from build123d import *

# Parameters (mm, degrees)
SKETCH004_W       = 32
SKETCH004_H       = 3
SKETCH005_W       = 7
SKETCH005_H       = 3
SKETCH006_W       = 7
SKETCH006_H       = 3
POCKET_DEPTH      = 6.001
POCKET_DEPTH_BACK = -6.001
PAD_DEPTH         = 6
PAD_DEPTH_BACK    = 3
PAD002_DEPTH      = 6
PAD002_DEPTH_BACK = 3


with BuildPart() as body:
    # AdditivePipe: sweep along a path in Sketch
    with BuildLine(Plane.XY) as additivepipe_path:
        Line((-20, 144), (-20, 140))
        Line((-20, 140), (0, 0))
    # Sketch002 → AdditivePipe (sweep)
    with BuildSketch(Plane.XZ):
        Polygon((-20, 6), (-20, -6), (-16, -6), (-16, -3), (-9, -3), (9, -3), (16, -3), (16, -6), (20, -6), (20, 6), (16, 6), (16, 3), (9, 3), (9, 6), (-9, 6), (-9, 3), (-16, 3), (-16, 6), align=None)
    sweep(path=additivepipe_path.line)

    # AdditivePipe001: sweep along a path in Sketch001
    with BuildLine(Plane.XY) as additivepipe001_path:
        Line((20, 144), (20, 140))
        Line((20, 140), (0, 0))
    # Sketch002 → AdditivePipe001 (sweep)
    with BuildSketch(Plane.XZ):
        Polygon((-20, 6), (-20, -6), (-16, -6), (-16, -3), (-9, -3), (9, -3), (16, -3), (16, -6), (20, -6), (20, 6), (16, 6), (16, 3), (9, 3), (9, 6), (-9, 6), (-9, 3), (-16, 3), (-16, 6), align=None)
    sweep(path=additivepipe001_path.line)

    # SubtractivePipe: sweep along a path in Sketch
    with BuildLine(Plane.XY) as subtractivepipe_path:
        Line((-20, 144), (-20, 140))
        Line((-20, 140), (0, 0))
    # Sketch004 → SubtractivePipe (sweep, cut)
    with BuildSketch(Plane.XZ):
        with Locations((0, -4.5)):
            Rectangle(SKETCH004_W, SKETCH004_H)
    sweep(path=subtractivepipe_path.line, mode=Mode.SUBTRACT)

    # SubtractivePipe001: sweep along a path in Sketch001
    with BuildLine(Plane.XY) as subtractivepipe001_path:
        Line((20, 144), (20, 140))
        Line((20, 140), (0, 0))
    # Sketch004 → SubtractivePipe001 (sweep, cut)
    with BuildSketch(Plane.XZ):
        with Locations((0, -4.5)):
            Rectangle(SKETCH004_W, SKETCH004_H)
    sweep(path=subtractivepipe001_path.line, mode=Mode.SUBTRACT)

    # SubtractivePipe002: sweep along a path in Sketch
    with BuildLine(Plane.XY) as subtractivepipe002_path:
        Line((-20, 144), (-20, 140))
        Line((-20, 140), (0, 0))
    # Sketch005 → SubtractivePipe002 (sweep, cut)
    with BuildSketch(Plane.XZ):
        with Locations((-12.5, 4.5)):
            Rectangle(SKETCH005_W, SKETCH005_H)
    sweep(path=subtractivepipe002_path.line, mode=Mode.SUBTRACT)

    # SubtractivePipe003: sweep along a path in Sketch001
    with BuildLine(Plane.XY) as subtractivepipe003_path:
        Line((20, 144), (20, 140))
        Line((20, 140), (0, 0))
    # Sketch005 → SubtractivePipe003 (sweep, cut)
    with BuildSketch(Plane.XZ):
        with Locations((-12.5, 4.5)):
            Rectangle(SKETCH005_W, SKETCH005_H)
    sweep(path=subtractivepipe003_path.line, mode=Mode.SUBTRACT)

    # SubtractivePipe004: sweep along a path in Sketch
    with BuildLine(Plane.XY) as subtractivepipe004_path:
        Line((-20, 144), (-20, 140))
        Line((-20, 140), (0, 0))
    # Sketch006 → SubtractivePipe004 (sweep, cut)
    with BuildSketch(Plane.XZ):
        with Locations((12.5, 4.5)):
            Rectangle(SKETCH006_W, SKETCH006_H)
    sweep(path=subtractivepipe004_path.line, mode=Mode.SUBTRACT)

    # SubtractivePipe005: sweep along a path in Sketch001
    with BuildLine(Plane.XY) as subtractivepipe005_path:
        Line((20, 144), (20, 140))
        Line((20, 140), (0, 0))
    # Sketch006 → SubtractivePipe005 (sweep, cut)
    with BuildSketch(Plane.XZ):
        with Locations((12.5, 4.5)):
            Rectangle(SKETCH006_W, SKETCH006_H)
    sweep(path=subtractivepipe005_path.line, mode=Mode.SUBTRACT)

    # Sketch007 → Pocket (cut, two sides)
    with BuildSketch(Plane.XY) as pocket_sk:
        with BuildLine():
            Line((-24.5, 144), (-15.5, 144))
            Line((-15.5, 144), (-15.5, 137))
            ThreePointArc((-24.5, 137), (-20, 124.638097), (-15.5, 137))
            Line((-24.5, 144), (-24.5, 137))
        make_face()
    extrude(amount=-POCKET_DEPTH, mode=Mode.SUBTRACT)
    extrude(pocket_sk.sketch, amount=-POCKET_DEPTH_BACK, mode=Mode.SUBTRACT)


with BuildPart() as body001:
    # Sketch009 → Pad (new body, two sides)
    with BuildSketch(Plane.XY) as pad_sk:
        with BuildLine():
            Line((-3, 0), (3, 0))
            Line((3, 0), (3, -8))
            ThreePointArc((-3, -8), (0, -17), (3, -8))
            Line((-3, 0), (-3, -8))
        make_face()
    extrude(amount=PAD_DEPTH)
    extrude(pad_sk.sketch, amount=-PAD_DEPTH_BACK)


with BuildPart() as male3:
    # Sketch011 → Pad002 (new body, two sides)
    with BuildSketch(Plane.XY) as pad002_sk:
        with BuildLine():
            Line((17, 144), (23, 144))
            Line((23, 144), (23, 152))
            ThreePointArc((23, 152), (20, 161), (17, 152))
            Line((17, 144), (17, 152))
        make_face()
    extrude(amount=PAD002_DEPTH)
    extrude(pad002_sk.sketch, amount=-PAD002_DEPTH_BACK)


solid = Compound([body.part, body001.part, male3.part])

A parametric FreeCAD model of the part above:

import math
import FreeCAD as App
import Part
import Sketcher
Q = App.Units.Quantity


def add_polygon(sketch, points):
    """Adds a closed chain of lines whose ends are joined by coincident constraints."""
    first, n = sketch.GeometryCount, len(points)
    for a, b in zip(points, points[1:] + points[:1]):
        sketch.addGeometry(Part.LineSegment(App.Vector(*a, 0), App.Vector(*b, 0)), False)
    for i in range(n):
        sketch.addConstraint(Sketcher.Constraint("Coincident", first + i, 2, first + (i + 1) % n, 1))

doc = App.newDocument("Part")
params = doc.addObject("Spreadsheet::Sheet", "Params")
for row, (alias, value) in enumerate([
    ("sketch1_width", "4 mm"),
    ("sketch1_width2", "32 mm"),
    ("sketch1_width3", "7 mm"),
    ("sketch1_height", "12 mm"),
    ("sketch1_height2", "3 mm"),
    ("sketch2_height", "4 mm"),
    ("sketch3_width", "4 mm"),
    ("sketch3_width2", "32 mm"),
    ("sketch3_width3", "7 mm"),
    ("sketch3_height", "12 mm"),
    ("sketch3_height2", "3 mm"),
    ("sketch4_height", "4 mm"),
    ("sketch5_width", "32 mm"),
    ("sketch5_height", "3 mm"),
    ("sketch6_height", "4 mm"),
    ("sketch7_width", "32 mm"),
    ("sketch7_height", "3 mm"),
    ("sketch8_height", "4 mm"),
    ("sketch9_width", "7 mm"),
    ("sketch9_height", "3 mm"),
    ("sketch10_height", "4 mm"),
    ("sketch11_width", "7 mm"),
    ("sketch11_height", "3 mm"),
    ("sketch12_height", "4 mm"),
    ("sketch13_width", "7 mm"),
    ("sketch13_height", "3 mm"),
    ("sketch14_height", "4 mm"),
    ("sketch15_width", "7 mm"),
    ("sketch15_height", "3 mm"),
    ("sketch16_height", "4 mm"),
    ("sketch17_radius", "7 mm"),
    ("sketch17_width", "9 mm"),
    ("sketch17_height", "7 mm"),
    ("sketch18_radius", "5 mm"),
    ("sketch18_width", "6 mm"),
    ("sketch18_height", "8 mm"),
    ("pad1_length", "6 mm"),
    ("pad1_length2", "3 mm"),
    ("sketch19_radius", "5 mm"),
    ("sketch19_width", "6 mm"),
    ("sketch19_height", "8 mm"),
    ("pad2_length", "6 mm"),
    ("pad2_length2", "3 mm"),
], start=1):
    params.set(f"A{row}", alias)
    params.set(f"B{row}", "=" + value)
    params.setAlias(f"B{row}", alias)

body = doc.addObject("PartDesign::Body", "Body")

sketch1 = body.newObject("Sketcher::SketchObject", "Sketch")
sketch1.AttachmentSupport = (doc.getObject("XZ_Plane"), [""])
sketch1.MapMode = "FlatFace"
add_polygon(sketch1, [(-20, 6), (-20, -6), (-16, -6), (-16, -3), (16, -3), (16, -6), (20, -6), (20, 6), (16, 6), (16, 3), (9, 3), (9, 6), (-9, 6), (-9, 3), (-16, 3), (-16, 6)])
sketch1.addConstraint([
    Sketcher.Constraint("Vertical", 0),
    Sketcher.Constraint("Horizontal", 1),
    Sketcher.Constraint("Vertical", 2),
    Sketcher.Constraint("Horizontal", 3),
    Sketcher.Constraint("Vertical", 4),
    Sketcher.Constraint("Horizontal", 5),
    Sketcher.Constraint("Vertical", 6),
    Sketcher.Constraint("Horizontal", 7),
    Sketcher.Constraint("Vertical", 8),
    Sketcher.Constraint("Horizontal", 9),
    Sketcher.Constraint("Vertical", 10),
    Sketcher.Constraint("Horizontal", 11),
    Sketcher.Constraint("Vertical", 12),
    Sketcher.Constraint("Horizontal", 13),
    Sketcher.Constraint("Vertical", 14),
    Sketcher.Constraint("Horizontal", 15),
    Sketcher.Constraint("Symmetric", 0, 2, 6, 2, -1, 1),
    Sketcher.Constraint("Symmetric", 2, 2, 8, 2, -1, 1),
    Sketcher.Constraint("Symmetric", 3, 2, 13, 2, -1, 1),
    Sketcher.Constraint("Symmetric", 1, 2, 4, 2, -2),
    Sketcher.Constraint("Horizontal", 7, 2, 10, 2),
    Sketcher.Constraint("Horizontal", 11, 2, 14, 2),
    Sketcher.Constraint("Equal", 9, 13),
    Sketcher.Constraint("DistanceX", 1, 1, 1, 2, Q("4 mm")),
    Sketcher.Constraint("DistanceX", 3, 1, 3, 2, Q("32 mm")),
    Sketcher.Constraint("DistanceX", 9, 2, 9, 1, Q("7 mm")),
    Sketcher.Constraint("DistanceY", 0, 2, 0, 1, Q("12 mm")),
    Sketcher.Constraint("DistanceY", 2, 1, 2, 2, Q("3 mm")),
])
sketch1.setExpression("Constraints[39]", "Params.sketch1_width")
sketch1.setExpression("Constraints[40]", "Params.sketch1_width2")
sketch1.setExpression("Constraints[41]", "Params.sketch1_width3")
sketch1.setExpression("Constraints[42]", "Params.sketch1_height")
sketch1.setExpression("Constraints[43]", "Params.sketch1_height2")

sketch2 = body.newObject("Sketcher::SketchObject", "Sketch001")
sketch2.AttachmentSupport = (doc.getObject("XY_Plane"), [""])
sketch2.MapMode = "FlatFace"
sketch2.addGeometry([
    Part.LineSegment(App.Vector(-20, 144, 0), App.Vector(-20, 140, 0)),
    Part.LineSegment(App.Vector(-20, 140, 0), App.Vector(0, 0, 0)),
], False)
sketch2.addConstraint([
    Sketcher.Constraint("Coincident", 0, 2, 1, 1),
    Sketcher.Constraint("Vertical", 0),
    Sketcher.Constraint("Coincident", 1, 2, -1, 1),
    Sketcher.Constraint("DistanceY", 0, 2, 0, 1, Q("4 mm")),
    Sketcher.Constraint("DistanceX", 0, 1, -1, 1, Q("20 mm")),
    Sketcher.Constraint("DistanceY", -1, 1, 0, 1, Q("144 mm")),
])
sketch2.setExpression("Constraints[3]", "Params.sketch2_height")
doc.recompute()

additivepipe = body.newObject("PartDesign::AdditivePipe", "AdditivePipe")
additivepipe.Profile = sketch1
additivepipe.Spine = (sketch2, ["Edge1", "Edge2"])

sketch3 = body.newObject("Sketcher::SketchObject", "Sketch002")
sketch3.AttachmentSupport = (doc.getObject("XZ_Plane"), [""])
sketch3.MapMode = "FlatFace"
add_polygon(sketch3, [(-20, 6), (-20, -6), (-16, -6), (-16, -3), (16, -3), (16, -6), (20, -6), (20, 6), (16, 6), (16, 3), (9, 3), (9, 6), (-9, 6), (-9, 3), (-16, 3), (-16, 6)])
sketch3.addConstraint([
    Sketcher.Constraint("Vertical", 0),
    Sketcher.Constraint("Horizontal", 1),
    Sketcher.Constraint("Vertical", 2),
    Sketcher.Constraint("Horizontal", 3),
    Sketcher.Constraint("Vertical", 4),
    Sketcher.Constraint("Horizontal", 5),
    Sketcher.Constraint("Vertical", 6),
    Sketcher.Constraint("Horizontal", 7),
    Sketcher.Constraint("Vertical", 8),
    Sketcher.Constraint("Horizontal", 9),
    Sketcher.Constraint("Vertical", 10),
    Sketcher.Constraint("Horizontal", 11),
    Sketcher.Constraint("Vertical", 12),
    Sketcher.Constraint("Horizontal", 13),
    Sketcher.Constraint("Vertical", 14),
    Sketcher.Constraint("Horizontal", 15),
    Sketcher.Constraint("Symmetric", 0, 2, 6, 2, -1, 1),
    Sketcher.Constraint("Symmetric", 2, 2, 8, 2, -1, 1),
    Sketcher.Constraint("Symmetric", 3, 2, 13, 2, -1, 1),
    Sketcher.Constraint("Symmetric", 1, 2, 4, 2, -2),
    Sketcher.Constraint("Horizontal", 7, 2, 10, 2),
    Sketcher.Constraint("Horizontal", 11, 2, 14, 2),
    Sketcher.Constraint("Equal", 9, 13),
    Sketcher.Constraint("DistanceX", 1, 1, 1, 2, Q("4 mm")),
    Sketcher.Constraint("DistanceX", 3, 1, 3, 2, Q("32 mm")),
    Sketcher.Constraint("DistanceX", 9, 2, 9, 1, Q("7 mm")),
    Sketcher.Constraint("DistanceY", 0, 2, 0, 1, Q("12 mm")),
    Sketcher.Constraint("DistanceY", 2, 1, 2, 2, Q("3 mm")),
])
sketch3.setExpression("Constraints[39]", "Params.sketch3_width")
sketch3.setExpression("Constraints[40]", "Params.sketch3_width2")
sketch3.setExpression("Constraints[41]", "Params.sketch3_width3")
sketch3.setExpression("Constraints[42]", "Params.sketch3_height")
sketch3.setExpression("Constraints[43]", "Params.sketch3_height2")

sketch4 = body.newObject("Sketcher::SketchObject", "Sketch003")
sketch4.AttachmentSupport = (doc.getObject("XY_Plane"), [""])
sketch4.MapMode = "FlatFace"
sketch4.addGeometry([
    Part.LineSegment(App.Vector(20, 144, 0), App.Vector(20, 140, 0)),
    Part.LineSegment(App.Vector(20, 140, 0), App.Vector(0, 0, 0)),
], False)
sketch4.addConstraint([
    Sketcher.Constraint("Coincident", 0, 2, 1, 1),
    Sketcher.Constraint("Vertical", 0),
    Sketcher.Constraint("Coincident", 1, 2, -1, 1),
    Sketcher.Constraint("DistanceY", 0, 2, 0, 1, Q("4 mm")),
    Sketcher.Constraint("DistanceX", -1, 1, 0, 1, Q("20 mm")),
    Sketcher.Constraint("DistanceY", -1, 1, 0, 1, Q("144 mm")),
])
sketch4.setExpression("Constraints[3]", "Params.sketch4_height")
doc.recompute()

additivepipe2 = body.newObject("PartDesign::AdditivePipe", "AdditivePipe001")
additivepipe2.Profile = sketch3
additivepipe2.Spine = (sketch4, ["Edge1", "Edge2"])

sketch5 = body.newObject("Sketcher::SketchObject", "Sketch004")
sketch5.AttachmentSupport = (doc.getObject("XZ_Plane"), [""])
sketch5.MapMode = "FlatFace"
add_polygon(sketch5, [(-16, -3), (-16, -6), (16, -6), (16, -3)])
sketch5.addConstraint([
    Sketcher.Constraint("Vertical", 0),
    Sketcher.Constraint("Horizontal", 1),
    Sketcher.Constraint("Vertical", 2),
    Sketcher.Constraint("Horizontal", 3),
    Sketcher.Constraint("DistanceX", 1, 1, 1, 2, Q("32 mm")),
    Sketcher.Constraint("DistanceY", 0, 2, 0, 1, Q("3 mm")),
    Sketcher.Constraint("DistanceX", 0, 2, -1, 1, Q("16 mm")),
    Sketcher.Constraint("DistanceY", 0, 2, -1, 1, Q("6 mm")),
])
sketch5.setExpression("Constraints[8]", "Params.sketch5_width")
sketch5.setExpression("Constraints[9]", "Params.sketch5_height")

sketch6 = body.newObject("Sketcher::SketchObject", "Sketch005")
sketch6.AttachmentSupport = (doc.getObject("XY_Plane"), [""])
sketch6.MapMode = "FlatFace"
sketch6.addGeometry([
    Part.LineSegment(App.Vector(-20, 144, 0), App.Vector(-20, 140, 0)),
    Part.LineSegment(App.Vector(-20, 140, 0), App.Vector(0, 0, 0)),
], False)
sketch6.addConstraint([
    Sketcher.Constraint("Coincident", 0, 2, 1, 1),
    Sketcher.Constraint("Vertical", 0),
    Sketcher.Constraint("Coincident", 1, 2, -1, 1),
    Sketcher.Constraint("DistanceY", 0, 2, 0, 1, Q("4 mm")),
    Sketcher.Constraint("DistanceX", 0, 1, -1, 1, Q("20 mm")),
    Sketcher.Constraint("DistanceY", -1, 1, 0, 1, Q("144 mm")),
])
sketch6.setExpression("Constraints[3]", "Params.sketch6_height")
doc.recompute()

subtractivepipe = body.newObject("PartDesign::SubtractivePipe", "SubtractivePipe")
subtractivepipe.Profile = sketch5
subtractivepipe.Spine = (sketch6, ["Edge1", "Edge2"])

sketch7 = body.newObject("Sketcher::SketchObject", "Sketch006")
sketch7.AttachmentSupport = (doc.getObject("XZ_Plane"), [""])
sketch7.MapMode = "FlatFace"
add_polygon(sketch7, [(-16, -3), (-16, -6), (16, -6), (16, -3)])
sketch7.addConstraint([
    Sketcher.Constraint("Vertical", 0),
    Sketcher.Constraint("Horizontal", 1),
    Sketcher.Constraint("Vertical", 2),
    Sketcher.Constraint("Horizontal", 3),
    Sketcher.Constraint("DistanceX", 1, 1, 1, 2, Q("32 mm")),
    Sketcher.Constraint("DistanceY", 0, 2, 0, 1, Q("3 mm")),
    Sketcher.Constraint("DistanceX", 0, 2, -1, 1, Q("16 mm")),
    Sketcher.Constraint("DistanceY", 0, 2, -1, 1, Q("6 mm")),
])
sketch7.setExpression("Constraints[8]", "Params.sketch7_width")
sketch7.setExpression("Constraints[9]", "Params.sketch7_height")

sketch8 = body.newObject("Sketcher::SketchObject", "Sketch007")
sketch8.AttachmentSupport = (doc.getObject("XY_Plane"), [""])
sketch8.MapMode = "FlatFace"
sketch8.addGeometry([
    Part.LineSegment(App.Vector(20, 144, 0), App.Vector(20, 140, 0)),
    Part.LineSegment(App.Vector(20, 140, 0), App.Vector(0, 0, 0)),
], False)
sketch8.addConstraint([
    Sketcher.Constraint("Coincident", 0, 2, 1, 1),
    Sketcher.Constraint("Vertical", 0),
    Sketcher.Constraint("Coincident", 1, 2, -1, 1),
    Sketcher.Constraint("DistanceY", 0, 2, 0, 1, Q("4 mm")),
    Sketcher.Constraint("DistanceX", -1, 1, 0, 1, Q("20 mm")),
    Sketcher.Constraint("DistanceY", -1, 1, 0, 1, Q("144 mm")),
])
sketch8.setExpression("Constraints[3]", "Params.sketch8_height")
doc.recompute()

subtractivepipe2 = body.newObject("PartDesign::SubtractivePipe", "SubtractivePipe001")
subtractivepipe2.Profile = sketch7
subtractivepipe2.Spine = (sketch8, ["Edge1", "Edge2"])

sketch9 = body.newObject("Sketcher::SketchObject", "Sketch008")
sketch9.AttachmentSupport = (doc.getObject("XZ_Plane"), [""])
sketch9.MapMode = "FlatFace"
add_polygon(sketch9, [(-16, 6), (-16, 3), (-9, 3), (-9, 6)])
sketch9.addConstraint([
    Sketcher.Constraint("Vertical", 0),
    Sketcher.Constraint("Horizontal", 1),
    Sketcher.Constraint("Vertical", 2),
    Sketcher.Constraint("Horizontal", 3),
    Sketcher.Constraint("DistanceX", 1, 1, 1, 2, Q("7 mm")),
    Sketcher.Constraint("DistanceY", 0, 2, 0, 1, Q("3 mm")),
    Sketcher.Constraint("DistanceX", 0, 2, -1, 1, Q("16 mm")),
    Sketcher.Constraint("DistanceY", -1, 1, 0, 2, Q("3 mm")),
])
sketch9.setExpression("Constraints[8]", "Params.sketch9_width")
sketch9.setExpression("Constraints[9]", "Params.sketch9_height")

sketch10 = body.newObject("Sketcher::SketchObject", "Sketch009")
sketch10.AttachmentSupport = (doc.getObject("XY_Plane"), [""])
sketch10.MapMode = "FlatFace"
sketch10.addGeometry([
    Part.LineSegment(App.Vector(-20, 144, 0), App.Vector(-20, 140, 0)),
    Part.LineSegment(App.Vector(-20, 140, 0), App.Vector(0, 0, 0)),
], False)
sketch10.addConstraint([
    Sketcher.Constraint("Coincident", 0, 2, 1, 1),
    Sketcher.Constraint("Vertical", 0),
    Sketcher.Constraint("Coincident", 1, 2, -1, 1),
    Sketcher.Constraint("DistanceY", 0, 2, 0, 1, Q("4 mm")),
    Sketcher.Constraint("DistanceX", 0, 1, -1, 1, Q("20 mm")),
    Sketcher.Constraint("DistanceY", -1, 1, 0, 1, Q("144 mm")),
])
sketch10.setExpression("Constraints[3]", "Params.sketch10_height")
doc.recompute()

subtractivepipe3 = body.newObject("PartDesign::SubtractivePipe", "SubtractivePipe002")
subtractivepipe3.Profile = sketch9
subtractivepipe3.Spine = (sketch10, ["Edge1", "Edge2"])

sketch11 = body.newObject("Sketcher::SketchObject", "Sketch010")
sketch11.AttachmentSupport = (doc.getObject("XZ_Plane"), [""])
sketch11.MapMode = "FlatFace"
add_polygon(sketch11, [(-16, 6), (-16, 3), (-9, 3), (-9, 6)])
sketch11.addConstraint([
    Sketcher.Constraint("Vertical", 0),
    Sketcher.Constraint("Horizontal", 1),
    Sketcher.Constraint("Vertical", 2),
    Sketcher.Constraint("Horizontal", 3),
    Sketcher.Constraint("DistanceX", 1, 1, 1, 2, Q("7 mm")),
    Sketcher.Constraint("DistanceY", 0, 2, 0, 1, Q("3 mm")),
    Sketcher.Constraint("DistanceX", 0, 2, -1, 1, Q("16 mm")),
    Sketcher.Constraint("DistanceY", -1, 1, 0, 2, Q("3 mm")),
])
sketch11.setExpression("Constraints[8]", "Params.sketch11_width")
sketch11.setExpression("Constraints[9]", "Params.sketch11_height")

sketch12 = body.newObject("Sketcher::SketchObject", "Sketch011")
sketch12.AttachmentSupport = (doc.getObject("XY_Plane"), [""])
sketch12.MapMode = "FlatFace"
sketch12.addGeometry([
    Part.LineSegment(App.Vector(20, 144, 0), App.Vector(20, 140, 0)),
    Part.LineSegment(App.Vector(20, 140, 0), App.Vector(0, 0, 0)),
], False)
sketch12.addConstraint([
    Sketcher.Constraint("Coincident", 0, 2, 1, 1),
    Sketcher.Constraint("Vertical", 0),
    Sketcher.Constraint("Coincident", 1, 2, -1, 1),
    Sketcher.Constraint("DistanceY", 0, 2, 0, 1, Q("4 mm")),
    Sketcher.Constraint("DistanceX", -1, 1, 0, 1, Q("20 mm")),
    Sketcher.Constraint("DistanceY", -1, 1, 0, 1, Q("144 mm")),
])
sketch12.setExpression("Constraints[3]", "Params.sketch12_height")
doc.recompute()

subtractivepipe4 = body.newObject("PartDesign::SubtractivePipe", "SubtractivePipe003")
subtractivepipe4.Profile = sketch11
subtractivepipe4.Spine = (sketch12, ["Edge1", "Edge2"])

sketch13 = body.newObject("Sketcher::SketchObject", "Sketch012")
sketch13.AttachmentSupport = (doc.getObject("XZ_Plane"), [""])
sketch13.MapMode = "FlatFace"
add_polygon(sketch13, [(9, 6), (9, 3), (16, 3), (16, 6)])
sketch13.addConstraint([
    Sketcher.Constraint("Vertical", 0),
    Sketcher.Constraint("Horizontal", 1),
    Sketcher.Constraint("Vertical", 2),
    Sketcher.Constraint("Horizontal", 3),
    Sketcher.Constraint("DistanceX", 1, 1, 1, 2, Q("7 mm")),
    Sketcher.Constraint("DistanceY", 0, 2, 0, 1, Q("3 mm")),
    Sketcher.Constraint("DistanceX", -1, 1, 0, 2, Q("9 mm")),
    Sketcher.Constraint("DistanceY", -1, 1, 0, 2, Q("3 mm")),
])
sketch13.setExpression("Constraints[8]", "Params.sketch13_width")
sketch13.setExpression("Constraints[9]", "Params.sketch13_height")

sketch14 = body.newObject("Sketcher::SketchObject", "Sketch013")
sketch14.AttachmentSupport = (doc.getObject("XY_Plane"), [""])
sketch14.MapMode = "FlatFace"
sketch14.addGeometry([
    Part.LineSegment(App.Vector(-20, 144, 0), App.Vector(-20, 140, 0)),
    Part.LineSegment(App.Vector(-20, 140, 0), App.Vector(0, 0, 0)),
], False)
sketch14.addConstraint([
    Sketcher.Constraint("Coincident", 0, 2, 1, 1),
    Sketcher.Constraint("Vertical", 0),
    Sketcher.Constraint("Coincident", 1, 2, -1, 1),
    Sketcher.Constraint("DistanceY", 0, 2, 0, 1, Q("4 mm")),
    Sketcher.Constraint("DistanceX", 0, 1, -1, 1, Q("20 mm")),
    Sketcher.Constraint("DistanceY", -1, 1, 0, 1, Q("144 mm")),
])
sketch14.setExpression("Constraints[3]", "Params.sketch14_height")
doc.recompute()

subtractivepipe5 = body.newObject("PartDesign::SubtractivePipe", "SubtractivePipe004")
subtractivepipe5.Profile = sketch13
subtractivepipe5.Spine = (sketch14, ["Edge1", "Edge2"])

sketch15 = body.newObject("Sketcher::SketchObject", "Sketch014")
sketch15.AttachmentSupport = (doc.getObject("XZ_Plane"), [""])
sketch15.MapMode = "FlatFace"
add_polygon(sketch15, [(9, 6), (9, 3), (16, 3), (16, 6)])
sketch15.addConstraint([
    Sketcher.Constraint("Vertical", 0),
    Sketcher.Constraint("Horizontal", 1),
    Sketcher.Constraint("Vertical", 2),
    Sketcher.Constraint("Horizontal", 3),
    Sketcher.Constraint("DistanceX", 1, 1, 1, 2, Q("7 mm")),
    Sketcher.Constraint("DistanceY", 0, 2, 0, 1, Q("3 mm")),
    Sketcher.Constraint("DistanceX", -1, 1, 0, 2, Q("9 mm")),
    Sketcher.Constraint("DistanceY", -1, 1, 0, 2, Q("3 mm")),
])
sketch15.setExpression("Constraints[8]", "Params.sketch15_width")
sketch15.setExpression("Constraints[9]", "Params.sketch15_height")

sketch16 = body.newObject("Sketcher::SketchObject", "Sketch015")
sketch16.AttachmentSupport = (doc.getObject("XY_Plane"), [""])
sketch16.MapMode = "FlatFace"
sketch16.addGeometry([
    Part.LineSegment(App.Vector(20, 144, 0), App.Vector(20, 140, 0)),
    Part.LineSegment(App.Vector(20, 140, 0), App.Vector(0, 0, 0)),
], False)
sketch16.addConstraint([
    Sketcher.Constraint("Coincident", 0, 2, 1, 1),
    Sketcher.Constraint("Vertical", 0),
    Sketcher.Constraint("Coincident", 1, 2, -1, 1),
    Sketcher.Constraint("DistanceY", 0, 2, 0, 1, Q("4 mm")),
    Sketcher.Constraint("DistanceX", -1, 1, 0, 1, Q("20 mm")),
    Sketcher.Constraint("DistanceY", -1, 1, 0, 1, Q("144 mm")),
])
sketch16.setExpression("Constraints[3]", "Params.sketch16_height")
doc.recompute()

subtractivepipe6 = body.newObject("PartDesign::SubtractivePipe", "SubtractivePipe005")
subtractivepipe6.Profile = sketch15
subtractivepipe6.Spine = (sketch16, ["Edge1", "Edge2"])

sketch17 = body.newObject("Sketcher::SketchObject", "Sketch016")
sketch17.AttachmentSupport = (doc.getObject("XY_Plane"), [""])
sketch17.MapMode = "FlatFace"
sketch17.addGeometry([
    Part.LineSegment(App.Vector(-16, 144, 0), App.Vector(-24, 144, 0)),
    Part.LineSegment(App.Vector(-24, 144, 0), App.Vector(-24, 137, 0)),
    Part.ArcOfCircle(Part.Circle(App.Vector(-20, 132, 0), App.Vector(0, 0, 1), 7), math.radians(130), math.radians(410)),
    Part.LineSegment(App.Vector(-16, 137, 0), App.Vector(-16, 144, 0)),
], False)
sketch17.addConstraint([
    Sketcher.Constraint("Coincident", 0, 2, 1, 1),
    Sketcher.Constraint("Coincident", 1, 2, 2, 1),
    Sketcher.Constraint("Coincident", 2, 2, 3, 1),
    Sketcher.Constraint("Coincident", 3, 2, 0, 1),
    Sketcher.Constraint("Horizontal", 0),
    Sketcher.Constraint("Vertical", 1),
    Sketcher.Constraint("Vertical", 3),
    Sketcher.Constraint("Horizontal", 1, 2, 2, 2),
    Sketcher.Constraint("Radius", 2, Q("7 mm")),
    Sketcher.Constraint("DistanceX", 0, 2, 0, 1, Q("9 mm")),
    Sketcher.Constraint("DistanceY", 1, 2, 1, 1, Q("7 mm")),
    Sketcher.Constraint("DistanceX", 2, 3, -1, 1, Q("20 mm")),
    Sketcher.Constraint("DistanceY", -1, 1, 0, 2, Q("144 mm")),
])
sketch17.setExpression("Constraints[8]", "Params.sketch17_radius")
sketch17.setExpression("Constraints[9]", "Params.sketch17_width")
sketch17.setExpression("Constraints[10]", "Params.sketch17_height")
pocket1 = body.newObject("PartDesign::Pocket", "Pocket")
pocket1.Profile = sketch17
pocket1.Type = "ThroughAll"
pocket1.Midplane = True
body2 = doc.addObject("PartDesign::Body", "Body001")

sketch18 = body2.newObject("Sketcher::SketchObject", "Sketch017")
sketch18.AttachmentSupport = (doc.getObject("XY_Plane001"), [""])
sketch18.MapMode = "FlatFace"
sketch18.addGeometry([
    Part.LineSegment(App.Vector(3, 0, 0), App.Vector(-3, 0, 0)),
    Part.LineSegment(App.Vector(-3, 0, 0), App.Vector(-3, -8, 0)),
    Part.ArcOfCircle(Part.Circle(App.Vector(0, -12, 0), App.Vector(0, 0, 1), 5), math.radians(127), math.radians(413)),
    Part.LineSegment(App.Vector(3, -8, 0), App.Vector(3, 0, 0)),
], False)
sketch18.addConstraint([
    Sketcher.Constraint("Coincident", 0, 2, 1, 1),
    Sketcher.Constraint("Coincident", 1, 2, 2, 1),
    Sketcher.Constraint("Coincident", 2, 2, 3, 1),
    Sketcher.Constraint("Coincident", 3, 2, 0, 1),
    Sketcher.Constraint("Horizontal", 0),
    Sketcher.Constraint("Vertical", 1),
    Sketcher.Constraint("Vertical", 3),
    Sketcher.Constraint("Symmetric", 0, 2, 3, 2, -1, 1),
    Sketcher.Constraint("PointOnObject", 2, 3, -2),
    Sketcher.Constraint("Radius", 2, Q("5 mm")),
    Sketcher.Constraint("DistanceX", 0, 2, 0, 1, Q("6 mm")),
    Sketcher.Constraint("DistanceY", 1, 2, 1, 1, Q("8 mm")),
])
sketch18.setExpression("Constraints[9]", "Params.sketch18_radius")
sketch18.setExpression("Constraints[10]", "Params.sketch18_width")
sketch18.setExpression("Constraints[11]", "Params.sketch18_height")
pad1 = body2.newObject("PartDesign::Pad", "Pad")
pad1.Profile = sketch18
pad1.Type = "TwoLengths"
pad1.setExpression("Length", "Params.pad1_length")
pad1.setExpression("Length2", "Params.pad1_length2")
body3 = doc.addObject("PartDesign::Body", "Body002")

sketch19 = body3.newObject("Sketcher::SketchObject", "Sketch018")
sketch19.AttachmentSupport = (doc.getObject("XY_Plane002"), [""])
sketch19.MapMode = "FlatFace"
sketch19.addGeometry([
    Part.LineSegment(App.Vector(17, 144, 0), App.Vector(23, 144, 0)),
    Part.LineSegment(App.Vector(23, 144, 0), App.Vector(23, 152, 0)),
    Part.ArcOfCircle(Part.Circle(App.Vector(20, 156, 0), App.Vector(0, 0, 1), 5), math.radians(-53), math.radians(233)),
    Part.LineSegment(App.Vector(17, 152, 0), App.Vector(17, 144, 0)),
], False)
sketch19.addConstraint([
    Sketcher.Constraint("Coincident", 0, 2, 1, 1),
    Sketcher.Constraint("Coincident", 1, 2, 2, 1),
    Sketcher.Constraint("Coincident", 2, 2, 3, 1),
    Sketcher.Constraint("Coincident", 3, 2, 0, 1),
    Sketcher.Constraint("Horizontal", 0),
    Sketcher.Constraint("Vertical", 1),
    Sketcher.Constraint("Vertical", 3),
    Sketcher.Constraint("Horizontal", 1, 2, 2, 2),
    Sketcher.Constraint("Radius", 2, Q("5 mm")),
    Sketcher.Constraint("DistanceX", 0, 1, 0, 2, Q("6 mm")),
    Sketcher.Constraint("DistanceY", 1, 1, 1, 2, Q("8 mm")),
    Sketcher.Constraint("DistanceX", -1, 1, 2, 3, Q("20 mm")),
    Sketcher.Constraint("DistanceY", -1, 1, 2, 3, Q("156 mm")),
])
sketch19.setExpression("Constraints[8]", "Params.sketch19_radius")
sketch19.setExpression("Constraints[9]", "Params.sketch19_width")
sketch19.setExpression("Constraints[10]", "Params.sketch19_height")
pad2 = body3.newObject("PartDesign::Pad", "Pad001")
pad2.Profile = sketch19
pad2.Type = "TwoLengths"
pad2.setExpression("Length", "Params.pad2_length")
pad2.setExpression("Length2", "Params.pad2_length2")

doc.recompute()
